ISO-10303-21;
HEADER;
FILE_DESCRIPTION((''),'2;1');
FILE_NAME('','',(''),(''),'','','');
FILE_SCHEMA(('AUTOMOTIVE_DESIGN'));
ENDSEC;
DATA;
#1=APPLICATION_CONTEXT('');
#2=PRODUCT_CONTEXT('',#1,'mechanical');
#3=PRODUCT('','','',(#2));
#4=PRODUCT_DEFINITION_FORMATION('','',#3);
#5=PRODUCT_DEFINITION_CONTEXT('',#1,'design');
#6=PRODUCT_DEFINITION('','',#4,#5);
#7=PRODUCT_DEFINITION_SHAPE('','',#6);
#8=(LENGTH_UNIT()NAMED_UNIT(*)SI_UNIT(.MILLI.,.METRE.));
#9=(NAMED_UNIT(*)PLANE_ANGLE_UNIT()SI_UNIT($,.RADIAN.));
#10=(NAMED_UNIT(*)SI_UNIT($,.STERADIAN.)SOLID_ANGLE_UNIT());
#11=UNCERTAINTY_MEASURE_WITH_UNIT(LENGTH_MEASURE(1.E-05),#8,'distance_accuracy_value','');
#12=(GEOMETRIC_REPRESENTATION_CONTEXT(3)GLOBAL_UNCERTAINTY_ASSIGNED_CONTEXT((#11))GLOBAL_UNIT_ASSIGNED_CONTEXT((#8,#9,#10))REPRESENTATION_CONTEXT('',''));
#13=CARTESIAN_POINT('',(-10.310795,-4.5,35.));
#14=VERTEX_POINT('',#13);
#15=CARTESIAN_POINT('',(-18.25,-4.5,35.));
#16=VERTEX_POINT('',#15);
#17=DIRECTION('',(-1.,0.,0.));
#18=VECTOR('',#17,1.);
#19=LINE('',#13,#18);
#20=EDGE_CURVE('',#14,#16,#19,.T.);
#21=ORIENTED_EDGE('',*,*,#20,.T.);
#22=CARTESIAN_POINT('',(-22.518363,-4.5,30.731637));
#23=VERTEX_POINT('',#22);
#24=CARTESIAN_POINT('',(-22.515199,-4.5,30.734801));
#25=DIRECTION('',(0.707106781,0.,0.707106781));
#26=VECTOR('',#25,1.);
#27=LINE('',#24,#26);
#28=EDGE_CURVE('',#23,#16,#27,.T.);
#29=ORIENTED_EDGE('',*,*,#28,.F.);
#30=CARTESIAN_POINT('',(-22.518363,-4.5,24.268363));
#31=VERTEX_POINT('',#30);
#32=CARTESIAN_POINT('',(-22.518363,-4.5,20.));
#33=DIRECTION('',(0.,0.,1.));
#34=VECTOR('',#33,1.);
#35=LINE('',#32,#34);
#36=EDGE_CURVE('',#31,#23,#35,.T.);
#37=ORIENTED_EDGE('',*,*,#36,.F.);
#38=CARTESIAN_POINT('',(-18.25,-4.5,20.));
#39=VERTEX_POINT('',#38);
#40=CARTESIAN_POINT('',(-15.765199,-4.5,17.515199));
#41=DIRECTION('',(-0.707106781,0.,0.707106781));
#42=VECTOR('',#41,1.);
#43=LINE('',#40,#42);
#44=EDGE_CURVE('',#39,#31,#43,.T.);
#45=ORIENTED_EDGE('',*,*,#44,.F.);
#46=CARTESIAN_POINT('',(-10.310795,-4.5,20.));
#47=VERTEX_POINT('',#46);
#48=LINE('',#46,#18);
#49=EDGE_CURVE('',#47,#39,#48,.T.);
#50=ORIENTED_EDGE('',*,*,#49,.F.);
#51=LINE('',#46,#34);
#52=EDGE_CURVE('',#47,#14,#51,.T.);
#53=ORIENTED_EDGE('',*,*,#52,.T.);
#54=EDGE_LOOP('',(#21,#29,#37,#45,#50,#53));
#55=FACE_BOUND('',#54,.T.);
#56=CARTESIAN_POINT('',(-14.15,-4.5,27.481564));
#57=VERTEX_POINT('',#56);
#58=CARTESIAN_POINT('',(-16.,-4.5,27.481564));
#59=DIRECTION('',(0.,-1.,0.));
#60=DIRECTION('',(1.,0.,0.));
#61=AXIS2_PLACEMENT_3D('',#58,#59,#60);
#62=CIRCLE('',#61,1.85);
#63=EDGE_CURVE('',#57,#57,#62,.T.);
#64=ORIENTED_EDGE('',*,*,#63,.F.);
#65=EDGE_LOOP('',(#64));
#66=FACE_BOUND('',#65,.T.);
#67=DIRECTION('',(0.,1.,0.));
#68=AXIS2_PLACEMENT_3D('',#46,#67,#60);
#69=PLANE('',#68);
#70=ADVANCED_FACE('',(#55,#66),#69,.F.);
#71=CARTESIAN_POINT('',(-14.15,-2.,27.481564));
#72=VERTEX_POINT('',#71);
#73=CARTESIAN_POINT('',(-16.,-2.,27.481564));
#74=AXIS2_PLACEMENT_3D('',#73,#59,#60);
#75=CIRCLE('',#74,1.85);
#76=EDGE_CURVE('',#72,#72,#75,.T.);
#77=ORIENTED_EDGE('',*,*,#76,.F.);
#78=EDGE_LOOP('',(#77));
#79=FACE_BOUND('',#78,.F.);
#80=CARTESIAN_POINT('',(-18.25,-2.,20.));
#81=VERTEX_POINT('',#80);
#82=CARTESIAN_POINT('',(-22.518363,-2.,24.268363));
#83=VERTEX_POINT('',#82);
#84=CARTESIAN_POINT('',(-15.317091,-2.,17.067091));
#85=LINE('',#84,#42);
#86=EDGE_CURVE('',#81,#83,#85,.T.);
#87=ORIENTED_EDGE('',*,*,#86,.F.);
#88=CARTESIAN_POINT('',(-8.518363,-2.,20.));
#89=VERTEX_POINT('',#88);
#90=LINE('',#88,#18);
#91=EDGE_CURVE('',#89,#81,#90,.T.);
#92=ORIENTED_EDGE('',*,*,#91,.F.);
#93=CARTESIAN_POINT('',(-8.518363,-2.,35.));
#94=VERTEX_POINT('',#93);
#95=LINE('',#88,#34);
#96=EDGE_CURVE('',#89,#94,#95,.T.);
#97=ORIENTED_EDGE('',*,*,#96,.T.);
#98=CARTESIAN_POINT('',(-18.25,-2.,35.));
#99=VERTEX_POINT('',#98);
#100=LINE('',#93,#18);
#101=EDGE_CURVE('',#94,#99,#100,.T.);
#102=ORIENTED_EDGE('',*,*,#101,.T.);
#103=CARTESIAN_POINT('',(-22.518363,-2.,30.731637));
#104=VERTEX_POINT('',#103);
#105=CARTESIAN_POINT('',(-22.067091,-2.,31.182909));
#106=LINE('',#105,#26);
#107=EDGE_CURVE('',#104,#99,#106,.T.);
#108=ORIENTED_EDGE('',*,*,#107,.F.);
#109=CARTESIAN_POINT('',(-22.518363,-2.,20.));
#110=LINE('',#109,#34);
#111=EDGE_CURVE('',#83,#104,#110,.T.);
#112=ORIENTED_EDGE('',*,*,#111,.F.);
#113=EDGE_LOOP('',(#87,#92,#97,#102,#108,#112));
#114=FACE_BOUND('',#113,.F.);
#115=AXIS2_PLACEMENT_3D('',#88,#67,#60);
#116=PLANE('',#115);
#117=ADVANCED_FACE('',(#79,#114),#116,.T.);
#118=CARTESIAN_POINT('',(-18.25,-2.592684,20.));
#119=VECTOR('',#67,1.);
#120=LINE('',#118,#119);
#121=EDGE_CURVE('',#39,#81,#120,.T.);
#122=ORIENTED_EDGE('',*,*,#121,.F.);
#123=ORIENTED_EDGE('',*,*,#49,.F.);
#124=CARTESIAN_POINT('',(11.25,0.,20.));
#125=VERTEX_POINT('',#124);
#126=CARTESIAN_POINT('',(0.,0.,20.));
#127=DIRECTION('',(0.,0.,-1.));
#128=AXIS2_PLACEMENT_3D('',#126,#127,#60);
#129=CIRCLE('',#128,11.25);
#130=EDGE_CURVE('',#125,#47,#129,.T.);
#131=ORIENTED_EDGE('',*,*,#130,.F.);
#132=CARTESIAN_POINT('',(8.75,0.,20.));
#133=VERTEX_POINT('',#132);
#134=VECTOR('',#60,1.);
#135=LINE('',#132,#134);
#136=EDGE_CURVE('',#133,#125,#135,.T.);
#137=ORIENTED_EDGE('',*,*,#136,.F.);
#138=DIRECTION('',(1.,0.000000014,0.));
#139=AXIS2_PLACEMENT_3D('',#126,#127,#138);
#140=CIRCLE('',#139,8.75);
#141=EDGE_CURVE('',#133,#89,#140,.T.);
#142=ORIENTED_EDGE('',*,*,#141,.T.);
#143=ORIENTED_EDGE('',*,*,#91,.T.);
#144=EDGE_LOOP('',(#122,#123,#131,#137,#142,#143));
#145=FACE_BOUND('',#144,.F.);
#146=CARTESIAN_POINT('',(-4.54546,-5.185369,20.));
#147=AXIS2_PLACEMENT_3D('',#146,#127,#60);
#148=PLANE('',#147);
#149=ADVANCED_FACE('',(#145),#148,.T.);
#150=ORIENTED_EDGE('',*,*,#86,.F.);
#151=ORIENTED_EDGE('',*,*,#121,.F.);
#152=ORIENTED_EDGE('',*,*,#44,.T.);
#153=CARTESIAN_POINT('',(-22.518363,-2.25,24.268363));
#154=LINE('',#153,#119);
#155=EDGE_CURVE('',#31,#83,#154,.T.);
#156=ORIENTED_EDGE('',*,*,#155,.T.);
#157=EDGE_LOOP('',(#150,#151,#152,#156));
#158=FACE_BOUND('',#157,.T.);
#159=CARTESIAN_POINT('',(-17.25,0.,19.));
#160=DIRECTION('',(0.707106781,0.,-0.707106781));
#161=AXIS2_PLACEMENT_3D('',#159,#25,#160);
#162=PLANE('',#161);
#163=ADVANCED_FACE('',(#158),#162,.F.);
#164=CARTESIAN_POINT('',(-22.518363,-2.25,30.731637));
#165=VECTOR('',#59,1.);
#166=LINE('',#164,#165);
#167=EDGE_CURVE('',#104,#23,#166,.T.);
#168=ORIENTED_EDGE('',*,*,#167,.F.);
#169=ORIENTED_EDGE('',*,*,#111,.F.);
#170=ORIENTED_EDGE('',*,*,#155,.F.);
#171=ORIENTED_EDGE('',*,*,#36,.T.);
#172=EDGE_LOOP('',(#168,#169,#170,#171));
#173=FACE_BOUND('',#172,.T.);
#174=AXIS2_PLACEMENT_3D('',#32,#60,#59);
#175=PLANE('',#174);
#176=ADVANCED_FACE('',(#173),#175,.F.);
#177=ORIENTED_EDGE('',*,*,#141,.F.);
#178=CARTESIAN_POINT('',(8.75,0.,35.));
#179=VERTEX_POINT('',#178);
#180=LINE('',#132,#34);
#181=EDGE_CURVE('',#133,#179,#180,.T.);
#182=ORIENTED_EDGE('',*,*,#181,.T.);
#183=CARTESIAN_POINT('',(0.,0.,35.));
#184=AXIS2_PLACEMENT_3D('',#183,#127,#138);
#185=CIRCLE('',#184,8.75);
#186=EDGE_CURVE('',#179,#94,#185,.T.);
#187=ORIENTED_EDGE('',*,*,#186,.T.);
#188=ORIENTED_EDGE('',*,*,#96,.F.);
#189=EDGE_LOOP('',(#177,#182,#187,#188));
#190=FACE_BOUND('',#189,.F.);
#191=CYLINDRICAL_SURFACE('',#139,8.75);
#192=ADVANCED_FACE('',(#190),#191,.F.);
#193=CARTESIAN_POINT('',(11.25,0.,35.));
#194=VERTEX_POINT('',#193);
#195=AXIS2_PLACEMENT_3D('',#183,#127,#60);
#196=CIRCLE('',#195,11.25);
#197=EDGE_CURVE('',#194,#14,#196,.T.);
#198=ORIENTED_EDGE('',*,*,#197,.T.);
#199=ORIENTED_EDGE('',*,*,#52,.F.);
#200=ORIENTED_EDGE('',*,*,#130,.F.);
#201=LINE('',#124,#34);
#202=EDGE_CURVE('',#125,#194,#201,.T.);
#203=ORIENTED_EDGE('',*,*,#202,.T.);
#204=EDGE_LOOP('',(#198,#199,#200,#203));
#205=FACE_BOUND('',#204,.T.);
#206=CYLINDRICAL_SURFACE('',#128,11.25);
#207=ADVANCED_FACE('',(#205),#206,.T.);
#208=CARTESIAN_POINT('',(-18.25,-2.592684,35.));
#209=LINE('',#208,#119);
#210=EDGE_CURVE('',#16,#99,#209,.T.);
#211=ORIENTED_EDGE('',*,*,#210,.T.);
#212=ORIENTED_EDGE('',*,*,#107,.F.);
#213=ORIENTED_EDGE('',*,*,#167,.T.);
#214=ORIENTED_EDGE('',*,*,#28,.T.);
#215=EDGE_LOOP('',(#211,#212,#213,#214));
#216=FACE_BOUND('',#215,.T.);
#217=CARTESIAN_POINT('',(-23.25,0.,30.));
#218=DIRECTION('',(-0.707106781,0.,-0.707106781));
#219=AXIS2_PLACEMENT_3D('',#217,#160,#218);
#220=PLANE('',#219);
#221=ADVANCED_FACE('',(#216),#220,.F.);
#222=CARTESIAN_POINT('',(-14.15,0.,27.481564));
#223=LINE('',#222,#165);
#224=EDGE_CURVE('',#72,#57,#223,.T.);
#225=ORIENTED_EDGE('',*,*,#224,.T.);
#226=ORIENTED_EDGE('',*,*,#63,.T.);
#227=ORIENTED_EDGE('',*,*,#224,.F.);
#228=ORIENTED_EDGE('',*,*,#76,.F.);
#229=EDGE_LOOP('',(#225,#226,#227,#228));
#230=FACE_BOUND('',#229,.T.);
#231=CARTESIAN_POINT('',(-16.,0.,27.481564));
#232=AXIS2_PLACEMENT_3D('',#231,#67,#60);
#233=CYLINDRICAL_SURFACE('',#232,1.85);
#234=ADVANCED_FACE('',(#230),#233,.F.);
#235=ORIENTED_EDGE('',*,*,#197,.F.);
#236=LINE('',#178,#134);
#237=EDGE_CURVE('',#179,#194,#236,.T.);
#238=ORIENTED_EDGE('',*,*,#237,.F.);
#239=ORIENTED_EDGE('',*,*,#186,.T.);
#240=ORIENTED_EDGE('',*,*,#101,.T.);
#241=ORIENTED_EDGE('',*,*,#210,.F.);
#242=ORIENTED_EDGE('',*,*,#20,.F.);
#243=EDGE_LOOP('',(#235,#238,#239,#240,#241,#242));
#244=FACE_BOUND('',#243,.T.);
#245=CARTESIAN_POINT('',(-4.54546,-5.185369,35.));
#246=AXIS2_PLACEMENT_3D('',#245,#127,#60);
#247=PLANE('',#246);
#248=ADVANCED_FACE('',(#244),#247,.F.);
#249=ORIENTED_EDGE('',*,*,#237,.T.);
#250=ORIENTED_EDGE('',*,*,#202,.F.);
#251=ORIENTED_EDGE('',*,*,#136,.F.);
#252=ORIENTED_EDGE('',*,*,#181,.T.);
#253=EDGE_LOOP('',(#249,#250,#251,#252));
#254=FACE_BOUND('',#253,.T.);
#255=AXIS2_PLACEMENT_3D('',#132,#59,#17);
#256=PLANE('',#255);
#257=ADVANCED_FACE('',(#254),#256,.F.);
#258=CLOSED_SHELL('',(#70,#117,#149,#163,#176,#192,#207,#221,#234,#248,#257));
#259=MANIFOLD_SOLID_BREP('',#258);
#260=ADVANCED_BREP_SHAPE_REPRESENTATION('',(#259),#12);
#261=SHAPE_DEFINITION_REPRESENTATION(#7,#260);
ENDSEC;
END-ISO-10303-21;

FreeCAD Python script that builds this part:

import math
import FreeCAD as App
import Part
import Sketcher

doc = App.newDocument("Part")
body = doc.addObject("PartDesign::Body", "Body")

sketch1 = body.newObject("Sketcher::SketchObject", "Sketch")
sketch1.AttachmentSupport = (doc.getObject("XZ_Plane"), [""])
sketch1.MapMode = "FlatFace"
sketch1.addGeometry([
    Part.LineSegment(App.Vector(11.8, 19, 0), App.Vector(11.8, 36, 0)),
    Part.LineSegment(App.Vector(11.8, 36, 0), App.Vector(-17.2, 36, 0)),
    Part.LineSegment(App.Vector(-17.2, 36, 0), App.Vector(-23.2, 30, 0)),
    Part.LineSegment(App.Vector(-23.2, 30, 0), App.Vector(-23.2, 25, 0)),
    Part.LineSegment(App.Vector(-23.2, 25, 0), App.Vector(-17.2, 19, 0)),
    Part.LineSegment(App.Vector(-17.2, 19, 0), App.Vector(11.8, 19, 0)),
    Part.Circle(App.Vector(-16, 27.5, 0), App.Vector(0, 0, 1), 1.9),
], False)
sketch1.addConstraint([
    Sketcher.Constraint("Coincident", 0, 2, 1, 1),
    Sketcher.Constraint("Coincident", 1, 2, 2, 1),
    Sketcher.Constraint("Coincident", 2, 2, 3, 1),
    Sketcher.Constraint("Coincident", 3, 2, 4, 1),
    Sketcher.Constraint("Coincident", 4, 2, 5, 1),
    Sketcher.Constraint("Coincident", 5, 2, 0, 1),
    Sketcher.Constraint("Vertical", 0),
    Sketcher.Constraint("Horizontal", 1),
    Sketcher.Constraint("Vertical", 3),
    Sketcher.Constraint("Horizontal", 5),
    Sketcher.Constraint("Perpendicular", 2, 4),
    Sketcher.Constraint("Vertical", 1, 2, 4, 2),
    Sketcher.Constraint("Equal", 2, 4),
    Sketcher.Constraint("Diameter", 6, 3.7),
    Sketcher.Constraint("DistanceX", 1, 2, 1, 1, 29.0),
    Sketcher.Constraint("DistanceY", 0, 1, 0, 2, 17.0),
    Sketcher.Constraint("DistanceY", 3, 2, 3, 1, 5.0),
    Sketcher.Constraint("DistanceX", 6, 3, -1, 1, 16.0),
    Sketcher.Constraint("DistanceY", -1, 1, 0, 2, 36.0),
    Sketcher.Constraint("DistanceX", -1, 1, 0, 2, 11.75),
    Sketcher.Constraint("DistanceY", -1, 1, 6, 3, 27.481564),
])
pad1 = body.newObject("PartDesign::Pad", "Pad")
pad1.Profile = sketch1
pad1.Length = 12
pad1.Reversed = True
body2 = doc.addObject("PartDesign::Body", "Body001")

sketch2 = body2.newObject("Sketcher::SketchObject", "Sketch001")
sketch2.AttachmentSupport = (doc.getObject("XZ_Plane001"), [""])
sketch2.MapMode = "FlatFace"
sketch2.AttachmentOffset = App.Placement(App.Vector(0, 0, -18), App.Rotation())
sketch2.addGeometry(Part.Circle(App.Vector(-16, 28, 0), App.Vector(0, 0, 1), 5), False)
sketch2.addConstraint([
    Sketcher.Constraint("Diameter", 0, 10.0),
    Sketcher.Constraint("DistanceX", 0, 3, -1, 1, 16.0),
    Sketcher.Constraint("DistanceY", -1, 1, 0, 3, 27.5),
])
pad2 = body2.newObject("PartDesign::Pad", "Pad001")
pad2.Profile = sketch2
pad2.Length = 1
body3 = doc.addObject("PartDesign::Body", "Body002")

sketch3 = body3.newObject("Sketcher::SketchObject", "Sketch002")
sketch3.AttachmentSupport = (doc.getObject("XY_Plane002"), [""])
sketch3.MapMode = "FlatFace"
sketch3.AttachmentOffset = App.Placement(App.Vector(0, 0, 50), App.Rotation())
sketch3.addGeometry([
    Part.ArcOfCircle(Part.Circle(App.Vector(0, 0, 0), App.Vector(0, 0, 1), 8.8), math.radians(0), math.radians(167)),
    Part.LineSegment(App.Vector(8.8, 0, 0), App.Vector(11.2, 0, 0)),
    Part.ArcOfCircle(Part.Circle(App.Vector(0, 0, 0), App.Vector(0, 0, 1), 11.2), math.radians(0), math.radians(156)),
    Part.LineSegment(App.Vector(-10.3, 4.5, 0), App.Vector(-22.5, 4.5, 0)),
    Part.LineSegment(App.Vector(-22.5, 4.5, 0), App.Vector(-22.5, 2, 0)),
    Part.LineSegment(App.Vector(-22.5, 2, 0), App.Vector(-8.5, 2, 0)),
], False)
sketch3.addConstraint([
    Sketcher.Constraint("Coincident", 0, 1, 1, 1),
    Sketcher.Constraint("Coincident", 1, 2, 2, 1),
    Sketcher.Constraint("Coincident", 2, 2, 3, 1),
    Sketcher.Constraint("Coincident", 3, 2, 4, 1),
    Sketcher.Constraint("Coincident", 4, 2, 5, 1),
    Sketcher.Constraint("Coincident", 5, 2, 0, 2),
    Sketcher.Constraint("Horizontal", 1),
    Sketcher.Constraint("Horizontal", 3),
    Sketcher.Constraint("Vertical", 4),
    Sketcher.Constraint("Horizontal", 5),
    Sketcher.Constraint("Coincident", 0, 3, -1, 1),
    Sketcher.Constraint("Coincident", 2, 3, -1, 1),
    Sketcher.Constraint("PointOnObject", 0, 1, -1),
    Sketcher.Constraint("Equal", 1, 4),
    Sketcher.Constraint("DistanceX", 5, 1, 5, 2, 14.0),
    Sketcher.Constraint("Radius", 0, 8.75),
    Sketcher.Constraint("Radius", 2, 11.25),
    Sketcher.Constraint("DistanceY", -1, 1, 4, 2, 2.0),
])
pad3 = body3.newObject("PartDesign::Pad", "Pad002")
pad3.Profile = sketch3
pad3.Length = 15
body4 = doc.addObject("PartDesign::Body", "Body003")
body4.AllowCompound = True
doc.recompute()

body3.Placement = App.Placement(App.Vector(0, 0, -30), App.Rotation(App.Vector(0, 0, 1), 0))
boolean = body4.newObject("PartDesign::Boolean", "Boolean")
boolean.Type = "Fuse"
boolean.addObjects([body3])
doc.recompute()

boolean2 = body4.newObject("PartDesign::Boolean", "Boolean001")
boolean2.Type = "Fuse"
boolean2.addObjects([body2])
doc.recompute()

boolean3 = body4.newObject("PartDesign::Boolean", "Boolean002")
boolean3.Type = "Common"
boolean3.addObjects([body])
body5 = doc.addObject("PartDesign::Body", "Body004")
doc.recompute()

mirroring = doc.addObject("Part::Mirroring", "Mirroring")
mirroring.Source = body4
mirroring.Base = App.Vector(0, 0, 0)
mirroring.Normal = App.Vector(0, 1, 0)
body5.BaseFeature = mirroring
doc.recompute()
body4.Visibility = False
mirroring.Visibility = False

doc.recompute()
